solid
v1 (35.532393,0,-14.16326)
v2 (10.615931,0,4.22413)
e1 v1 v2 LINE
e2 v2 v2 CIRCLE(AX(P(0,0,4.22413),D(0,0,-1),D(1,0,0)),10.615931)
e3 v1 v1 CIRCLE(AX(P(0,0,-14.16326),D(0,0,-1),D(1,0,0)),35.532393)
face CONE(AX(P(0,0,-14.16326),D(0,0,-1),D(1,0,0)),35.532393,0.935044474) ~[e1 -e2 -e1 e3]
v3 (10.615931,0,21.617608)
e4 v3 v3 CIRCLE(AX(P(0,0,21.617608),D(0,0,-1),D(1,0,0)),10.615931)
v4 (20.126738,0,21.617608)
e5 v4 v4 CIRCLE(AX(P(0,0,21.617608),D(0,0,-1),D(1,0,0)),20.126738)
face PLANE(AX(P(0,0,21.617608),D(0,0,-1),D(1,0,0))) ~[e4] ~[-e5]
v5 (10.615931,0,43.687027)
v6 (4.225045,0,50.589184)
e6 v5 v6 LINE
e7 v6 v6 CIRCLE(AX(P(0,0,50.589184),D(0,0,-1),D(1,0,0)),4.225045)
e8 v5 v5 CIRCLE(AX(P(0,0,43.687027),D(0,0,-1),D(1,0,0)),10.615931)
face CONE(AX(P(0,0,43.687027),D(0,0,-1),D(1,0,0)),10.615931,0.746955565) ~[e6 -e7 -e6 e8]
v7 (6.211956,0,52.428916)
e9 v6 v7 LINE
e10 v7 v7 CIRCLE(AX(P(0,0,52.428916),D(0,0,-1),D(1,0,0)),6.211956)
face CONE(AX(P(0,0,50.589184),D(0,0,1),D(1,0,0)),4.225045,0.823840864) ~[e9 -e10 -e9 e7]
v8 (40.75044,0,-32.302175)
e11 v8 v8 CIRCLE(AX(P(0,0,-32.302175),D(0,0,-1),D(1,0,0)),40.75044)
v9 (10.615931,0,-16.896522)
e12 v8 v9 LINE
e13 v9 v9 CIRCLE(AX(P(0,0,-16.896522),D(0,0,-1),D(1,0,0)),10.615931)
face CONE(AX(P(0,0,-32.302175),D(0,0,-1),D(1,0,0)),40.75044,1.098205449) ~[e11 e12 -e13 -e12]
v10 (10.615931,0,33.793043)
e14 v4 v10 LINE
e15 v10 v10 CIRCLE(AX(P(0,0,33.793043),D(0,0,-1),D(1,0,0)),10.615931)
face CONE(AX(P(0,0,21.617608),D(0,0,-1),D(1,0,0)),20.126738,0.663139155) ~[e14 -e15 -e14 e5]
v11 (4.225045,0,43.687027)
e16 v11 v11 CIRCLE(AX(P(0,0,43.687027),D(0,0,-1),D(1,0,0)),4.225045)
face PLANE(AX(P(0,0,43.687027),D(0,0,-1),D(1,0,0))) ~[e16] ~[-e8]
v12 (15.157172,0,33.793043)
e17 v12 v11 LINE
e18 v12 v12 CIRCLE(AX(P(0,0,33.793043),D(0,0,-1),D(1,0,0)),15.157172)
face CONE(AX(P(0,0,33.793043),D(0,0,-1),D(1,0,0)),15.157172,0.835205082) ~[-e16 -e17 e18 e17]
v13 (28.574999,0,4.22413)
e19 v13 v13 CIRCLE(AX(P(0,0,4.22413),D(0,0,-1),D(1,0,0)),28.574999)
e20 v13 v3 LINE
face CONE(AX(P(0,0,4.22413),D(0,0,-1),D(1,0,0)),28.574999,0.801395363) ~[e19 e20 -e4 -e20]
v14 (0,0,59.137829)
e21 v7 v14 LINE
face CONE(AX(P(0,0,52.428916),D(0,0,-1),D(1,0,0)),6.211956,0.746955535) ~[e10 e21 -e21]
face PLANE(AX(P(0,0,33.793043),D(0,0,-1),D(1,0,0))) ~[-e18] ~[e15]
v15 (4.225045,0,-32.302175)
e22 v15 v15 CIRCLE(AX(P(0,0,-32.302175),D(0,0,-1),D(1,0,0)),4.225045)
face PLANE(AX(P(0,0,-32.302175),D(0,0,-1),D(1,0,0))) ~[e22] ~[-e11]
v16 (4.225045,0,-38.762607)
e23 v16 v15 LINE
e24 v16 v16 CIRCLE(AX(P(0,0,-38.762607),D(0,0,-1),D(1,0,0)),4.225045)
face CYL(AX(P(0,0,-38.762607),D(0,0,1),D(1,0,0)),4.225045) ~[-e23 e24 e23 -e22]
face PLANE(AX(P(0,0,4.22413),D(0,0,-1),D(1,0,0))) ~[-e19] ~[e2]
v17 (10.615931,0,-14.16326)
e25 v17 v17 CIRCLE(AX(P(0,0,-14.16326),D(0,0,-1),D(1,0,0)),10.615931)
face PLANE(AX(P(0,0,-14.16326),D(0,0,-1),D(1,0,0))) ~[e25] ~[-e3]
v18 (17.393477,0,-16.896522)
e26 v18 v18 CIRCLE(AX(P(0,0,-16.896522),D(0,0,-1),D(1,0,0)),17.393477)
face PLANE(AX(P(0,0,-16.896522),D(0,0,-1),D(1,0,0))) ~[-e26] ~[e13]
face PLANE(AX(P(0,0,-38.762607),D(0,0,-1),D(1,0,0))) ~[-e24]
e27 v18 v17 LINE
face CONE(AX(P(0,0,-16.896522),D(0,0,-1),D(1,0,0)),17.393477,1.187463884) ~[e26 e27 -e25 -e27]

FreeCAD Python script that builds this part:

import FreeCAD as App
import Part
import Sketcher

doc = App.newDocument("Part")
body = doc.addObject("PartDesign::Body", "Body")

sketch1 = body.newObject("Sketcher::SketchObject", "Sketch")
sketch1.AttachmentSupport = (doc.getObject("XZ_Plane"), [""])
sketch1.MapMode = "FlatFace"
sketch1.addGeometry([
    Part.LineSegment(App.Vector(6.211956, 52.428916, 0), App.Vector(0, 59.137829, 0)),
    Part.LineSegment(App.Vector(0, 59.137829, 0), App.Vector(0, -38.762607, 0)),
    Part.LineSegment(App.Vector(0, -38.762607, 0), App.Vector(4.225045, -38.762607, 0)),
    Part.LineSegment(App.Vector(4.225045, -38.762607, 0), App.Vector(4.225045, -32.302175, 0)),
    Part.LineSegment(App.Vector(4.225045, -32.302175, 0), App.Vector(40.75044, -32.302175, 0)),
    Part.LineSegment(App.Vector(40.75044, -32.302175, 0), App.Vector(10.615931, -16.896522, 0)),
    Part.LineSegment(App.Vector(10.615931, -16.896522, 0), App.Vector(17.393477, -16.896522, 0)),
    Part.LineSegment(App.Vector(17.393477, -16.896522, 0), App.Vector(10.615931, -14.16326, 0)),
    Part.LineSegment(App.Vector(10.615931, -14.16326, 0), App.Vector(35.532393, -14.16326, 0)),
    Part.LineSegment(App.Vector(35.532393, -14.16326, 0), App.Vector(10.615931, 4.22413, 0)),
    Part.LineSegment(App.Vector(10.615931, 4.22413, 0), App.Vector(28.574999, 4.22413, 0)),
    Part.LineSegment(App.Vector(28.574999, 4.22413, 0), App.Vector(10.615931, 21.617608, 0)),
    Part.LineSegment(App.Vector(10.615931, 21.617608, 0), App.Vector(20.126738, 21.617608, 0)),
    Part.LineSegment(App.Vector(20.126738, 21.617608, 0), App.Vector(10.615931, 33.793043, 0)),
    Part.LineSegment(App.Vector(10.615931, 33.793043, 0), App.Vector(15.157172, 33.793043, 0)),
    Part.LineSegment(App.Vector(15.157172, 33.793043, 0), App.Vector(4.225045, 43.687027, 0)),
    Part.LineSegment(App.Vector(4.225045, 43.687027, 0), App.Vector(10.615931, 43.687027, 0)),
    Part.LineSegment(App.Vector(10.615931, 43.687027, 0), App.Vector(4.225045, 50.589184, 0)),
    Part.LineSegment(App.Vector(4.225045, 50.589184, 0), App.Vector(6.211956, 52.428916, 0)),
], False)
sketch1.addConstraint([
    Sketcher.Constraint("Coincident", 0, 2, 1, 1),
    Sketcher.Constraint("Coincident", 1, 2, 2, 1),
    Sketcher.Constraint("Coincident", 2, 2, 3, 1),
    Sketcher.Constraint("Coincident", 3, 2, 4, 1),
    Sketcher.Constraint("Coincident", 4, 2, 5, 1),
    Sketcher.Constraint("Coincident", 5, 2, 6, 1),
    Sketcher.Constraint("Coincident", 6, 2, 7, 1),
    Sketcher.Constraint("Coincident", 7, 2, 8, 1),
    Sketcher.Constraint("Coincident", 8, 2, 9, 1),
    Sketcher.Constraint("Coincident", 9, 2, 10, 1),
    Sketcher.Constraint("Coincident", 10, 2, 11, 1),
    Sketcher.Constraint("Coincident", 11, 2, 12, 1),
    Sketcher.Constraint("Coincident", 12, 2, 13, 1),
    Sketcher.Constraint("Coincident", 13, 2, 14, 1),
    Sketcher.Constraint("Coincident", 14, 2, 15, 1),
    Sketcher.Constraint("Coincident", 15, 2, 16, 1),
    Sketcher.Constraint("Coincident", 16, 2, 17, 1),
    Sketcher.Constraint("Coincident", 17, 2, 18, 1),
    Sketcher.Constraint("Coincident", 18, 2, 0, 1),
    Sketcher.Constraint("Vertical", 1),
    Sketcher.Constraint("Horizontal", 2),
    Sketcher.Constraint("Vertical", 3),
    Sketcher.Constraint("Horizontal", 4),
    Sketcher.Constraint("Horizontal", 6),
    Sketcher.Constraint("Horizontal", 8),
    Sketcher.Constraint("Horizontal", 10),
    Sketcher.Constraint("Horizontal", 12),
    Sketcher.Constraint("Horizontal", 14),
    Sketcher.Constraint("Horizontal", 16),
    Sketcher.Constraint("PointOnObject", 0, 2, -2),
    Sketcher.Constraint("Parallel", 0, 17),
    Sketcher.Constraint("Perpendicular", 17, 18),
    Sketcher.Constraint("Vertical", 5, 2, 7, 2),
    Sketcher.Constraint("Vertical", 7, 2, 9, 2),
    Sketcher.Constraint("Vertical", 9, 2, 11, 2),
    Sketcher.Constraint("Vertical", 11, 2, 13, 2),
    Sketcher.Constraint("Vertical", 3, 2, 15, 2),
    Sketcher.Constraint("Vertical", 13, 2, 16, 2),
    Sketcher.Constraint("Vertical", 15, 2, 17, 2),
    Sketcher.Constraint("DistanceX", -1, 1, 10, 2, 28.574999),
    Sketcher.Constraint("DistanceX", 8, 1, 8, 2, 24.916462),
    Sketcher.Constraint("DistanceX", 14, 1, 14, 2, 4.541241),
    Sketcher.Constraint("Distance", 0, 9.143189),
    Sketcher.Constraint("Distance", 7, 7.307931),
    Sketcher.Constraint("Distance", 13, 15.449811),
    Sketcher.Constraint("Distance", 15, 14.744569),
    Sketcher.Constraint("Distance", 17, 9.406551),
    Sketcher.Constraint("DistanceX", 2, 1, 2, 2, 4.225045),
    Sketcher.Constraint("DistanceX", 4, 1, 4, 2, 36.525395),
    Sketcher.Constraint("DistanceX", 6, 1, 6, 2, 6.777546),
    Sketcher.Constraint("DistanceX", 10, 1, 10, 2, 17.959068),
    Sketcher.Constraint("DistanceX", 12, 1, 12, 2, 9.510807),
    Sketcher.Constraint("DistanceY", 1, 2, 1, 1, 97.900436),
    Sketcher.Constraint("DistanceY", 3, 1, 3, 2, 6.460432),
    Sketcher.Constraint("DistanceY", -1, 1, 0, 2, 59.137829),
    Sketcher.Constraint("DistanceY", 7, 2, -1, 1, 14.16326),
    Sketcher.Constraint("DistanceY", -1, 1, 9, 2, 4.22413),
])
revolution = body.newObject("PartDesign::Revolution", "Revolution")
revolution.Profile = sketch1
revolution.ReferenceAxis = (sketch1, ["V_Axis"])
revolution.Angle = 360

doc.recompute()
